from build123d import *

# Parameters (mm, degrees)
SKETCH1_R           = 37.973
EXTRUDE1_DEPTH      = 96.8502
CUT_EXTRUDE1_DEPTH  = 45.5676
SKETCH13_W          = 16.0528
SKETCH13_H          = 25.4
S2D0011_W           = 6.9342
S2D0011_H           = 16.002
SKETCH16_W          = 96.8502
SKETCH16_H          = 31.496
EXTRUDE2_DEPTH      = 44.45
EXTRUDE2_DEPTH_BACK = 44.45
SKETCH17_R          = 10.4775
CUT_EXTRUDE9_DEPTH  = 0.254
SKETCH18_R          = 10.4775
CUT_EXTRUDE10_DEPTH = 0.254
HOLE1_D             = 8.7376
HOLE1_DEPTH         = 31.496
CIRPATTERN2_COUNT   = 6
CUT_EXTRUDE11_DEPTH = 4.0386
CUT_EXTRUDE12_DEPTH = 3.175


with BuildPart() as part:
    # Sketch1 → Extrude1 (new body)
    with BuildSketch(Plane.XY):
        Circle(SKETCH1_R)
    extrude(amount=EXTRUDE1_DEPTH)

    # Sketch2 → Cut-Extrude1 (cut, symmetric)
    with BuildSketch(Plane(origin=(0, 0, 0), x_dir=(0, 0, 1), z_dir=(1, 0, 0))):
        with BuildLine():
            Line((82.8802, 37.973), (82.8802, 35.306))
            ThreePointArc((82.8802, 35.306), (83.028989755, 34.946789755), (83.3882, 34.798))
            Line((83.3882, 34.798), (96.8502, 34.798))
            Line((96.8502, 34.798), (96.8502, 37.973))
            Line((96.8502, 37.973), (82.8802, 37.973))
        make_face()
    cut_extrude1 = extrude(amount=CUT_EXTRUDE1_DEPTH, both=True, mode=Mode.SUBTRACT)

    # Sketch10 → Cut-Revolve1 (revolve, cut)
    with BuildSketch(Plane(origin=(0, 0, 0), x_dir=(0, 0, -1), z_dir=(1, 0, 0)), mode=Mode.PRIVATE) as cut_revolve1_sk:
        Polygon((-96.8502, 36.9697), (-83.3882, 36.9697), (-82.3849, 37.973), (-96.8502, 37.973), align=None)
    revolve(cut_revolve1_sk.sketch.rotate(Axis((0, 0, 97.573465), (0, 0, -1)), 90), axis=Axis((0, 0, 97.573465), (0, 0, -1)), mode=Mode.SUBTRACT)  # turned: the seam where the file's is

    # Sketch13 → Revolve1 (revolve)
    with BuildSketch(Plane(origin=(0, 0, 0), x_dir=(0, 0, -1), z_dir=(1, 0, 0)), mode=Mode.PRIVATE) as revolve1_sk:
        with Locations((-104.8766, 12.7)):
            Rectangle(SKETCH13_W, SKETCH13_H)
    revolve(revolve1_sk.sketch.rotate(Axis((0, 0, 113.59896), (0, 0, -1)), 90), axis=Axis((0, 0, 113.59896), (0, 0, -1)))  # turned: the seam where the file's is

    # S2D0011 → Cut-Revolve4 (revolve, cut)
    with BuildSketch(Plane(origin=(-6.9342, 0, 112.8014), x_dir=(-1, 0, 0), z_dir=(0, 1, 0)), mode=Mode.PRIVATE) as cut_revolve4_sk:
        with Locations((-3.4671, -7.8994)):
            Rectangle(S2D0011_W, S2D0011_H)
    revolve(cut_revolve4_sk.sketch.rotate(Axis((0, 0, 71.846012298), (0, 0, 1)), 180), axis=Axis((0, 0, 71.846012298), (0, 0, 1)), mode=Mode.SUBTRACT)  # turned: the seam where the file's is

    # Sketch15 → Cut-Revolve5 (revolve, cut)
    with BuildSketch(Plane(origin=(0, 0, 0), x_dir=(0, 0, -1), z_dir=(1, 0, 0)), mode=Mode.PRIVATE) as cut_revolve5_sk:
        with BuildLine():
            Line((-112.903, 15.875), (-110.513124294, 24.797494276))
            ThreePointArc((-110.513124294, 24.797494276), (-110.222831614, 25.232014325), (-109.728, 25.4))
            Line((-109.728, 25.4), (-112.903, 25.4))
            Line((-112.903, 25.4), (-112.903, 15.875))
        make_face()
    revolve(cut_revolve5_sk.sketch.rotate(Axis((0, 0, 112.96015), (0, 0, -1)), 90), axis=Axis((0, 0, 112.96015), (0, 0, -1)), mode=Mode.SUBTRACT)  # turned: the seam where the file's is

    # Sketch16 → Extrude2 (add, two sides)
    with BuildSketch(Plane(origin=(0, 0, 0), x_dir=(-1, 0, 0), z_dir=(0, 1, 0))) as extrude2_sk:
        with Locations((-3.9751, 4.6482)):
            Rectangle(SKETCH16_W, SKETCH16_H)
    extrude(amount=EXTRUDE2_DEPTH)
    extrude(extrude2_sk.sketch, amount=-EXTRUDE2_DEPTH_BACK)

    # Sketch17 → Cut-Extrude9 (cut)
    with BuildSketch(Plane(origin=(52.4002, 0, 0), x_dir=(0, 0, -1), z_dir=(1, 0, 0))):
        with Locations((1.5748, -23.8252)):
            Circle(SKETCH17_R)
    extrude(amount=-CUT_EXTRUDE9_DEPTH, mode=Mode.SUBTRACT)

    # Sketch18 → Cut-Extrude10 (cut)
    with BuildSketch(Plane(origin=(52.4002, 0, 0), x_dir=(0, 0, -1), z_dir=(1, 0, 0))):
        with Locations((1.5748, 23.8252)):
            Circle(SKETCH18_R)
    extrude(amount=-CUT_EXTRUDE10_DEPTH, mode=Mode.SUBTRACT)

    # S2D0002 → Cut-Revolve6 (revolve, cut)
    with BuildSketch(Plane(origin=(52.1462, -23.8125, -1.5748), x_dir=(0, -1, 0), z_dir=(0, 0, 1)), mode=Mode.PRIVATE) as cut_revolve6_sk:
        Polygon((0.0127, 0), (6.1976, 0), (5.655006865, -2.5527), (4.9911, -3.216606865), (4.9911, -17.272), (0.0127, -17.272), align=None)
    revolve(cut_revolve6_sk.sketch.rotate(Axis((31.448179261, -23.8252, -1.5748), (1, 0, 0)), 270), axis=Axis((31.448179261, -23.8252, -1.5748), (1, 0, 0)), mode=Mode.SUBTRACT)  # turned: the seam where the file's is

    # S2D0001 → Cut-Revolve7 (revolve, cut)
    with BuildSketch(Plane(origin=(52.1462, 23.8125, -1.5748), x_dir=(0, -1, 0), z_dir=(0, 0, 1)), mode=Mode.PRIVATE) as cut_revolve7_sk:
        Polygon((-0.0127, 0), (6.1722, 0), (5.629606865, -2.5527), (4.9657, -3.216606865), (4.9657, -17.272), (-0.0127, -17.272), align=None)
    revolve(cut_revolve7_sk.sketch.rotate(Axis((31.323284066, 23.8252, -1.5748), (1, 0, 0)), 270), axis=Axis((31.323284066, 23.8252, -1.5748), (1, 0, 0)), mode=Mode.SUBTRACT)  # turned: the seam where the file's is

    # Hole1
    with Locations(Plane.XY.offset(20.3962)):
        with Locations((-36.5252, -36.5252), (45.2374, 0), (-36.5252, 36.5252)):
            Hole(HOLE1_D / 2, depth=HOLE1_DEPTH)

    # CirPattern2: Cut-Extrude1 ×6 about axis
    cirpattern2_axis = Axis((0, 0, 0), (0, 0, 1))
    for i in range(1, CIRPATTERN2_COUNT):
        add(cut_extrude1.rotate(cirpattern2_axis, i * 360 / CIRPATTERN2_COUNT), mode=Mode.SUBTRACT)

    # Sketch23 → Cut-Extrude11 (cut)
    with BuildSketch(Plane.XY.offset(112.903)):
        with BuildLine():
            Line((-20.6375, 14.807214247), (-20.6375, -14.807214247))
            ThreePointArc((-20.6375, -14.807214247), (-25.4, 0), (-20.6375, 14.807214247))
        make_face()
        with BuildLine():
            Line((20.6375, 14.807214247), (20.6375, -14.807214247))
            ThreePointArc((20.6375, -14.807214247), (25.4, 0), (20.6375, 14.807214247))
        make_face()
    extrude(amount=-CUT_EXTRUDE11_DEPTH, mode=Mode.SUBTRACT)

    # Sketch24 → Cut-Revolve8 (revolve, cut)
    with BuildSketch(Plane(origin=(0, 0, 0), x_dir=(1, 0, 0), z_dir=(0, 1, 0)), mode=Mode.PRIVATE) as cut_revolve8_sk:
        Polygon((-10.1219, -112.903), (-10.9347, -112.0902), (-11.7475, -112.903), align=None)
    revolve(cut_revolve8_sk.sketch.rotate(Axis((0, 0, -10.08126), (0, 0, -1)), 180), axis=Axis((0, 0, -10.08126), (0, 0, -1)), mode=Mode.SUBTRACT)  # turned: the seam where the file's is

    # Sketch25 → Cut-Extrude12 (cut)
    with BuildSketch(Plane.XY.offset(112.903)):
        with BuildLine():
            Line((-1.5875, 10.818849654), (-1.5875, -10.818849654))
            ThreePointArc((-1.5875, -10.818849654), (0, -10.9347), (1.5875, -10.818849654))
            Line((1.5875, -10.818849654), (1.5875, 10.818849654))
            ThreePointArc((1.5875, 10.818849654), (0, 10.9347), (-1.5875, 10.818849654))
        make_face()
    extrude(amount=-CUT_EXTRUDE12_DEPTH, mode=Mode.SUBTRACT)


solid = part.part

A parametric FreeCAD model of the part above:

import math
import FreeCAD as App
import Part
import Sketcher

V = App.Vector
Q = App.Units.Quantity

doc = App.newDocument("Part")
params = doc.addObject("Spreadsheet::Sheet", "Params")
for row, (alias, value) in enumerate([
    ("sketch1_diameter", "2.99 in"),
    ("pad1_length", "3.813 in"),
    ("sketch2_radius", "0.02 in"),
    ("sketch2_height", "0.53 in"),
    ("sketch2_width", "0.105 in"),
    ("pocket1_length", "3.588 in"),
    ("sketch3_height", "0.53 in"),
    ("groove_angle", "360 deg"),
    ("sketch4_width", "1 in"),
    ("sketch4_height", "0.632 in"),
    ("revolution_angle", "360 deg"),
    ("sketch5_height", "0.63 in"),
    ("sketch5_width", "0.273 in"),
    ("groove2_angle", "360 deg"),
    ("sketch6_radius", "0.032 in"),
    ("sketch6_width", "0.375 in"),
    ("sketch6_height", "0.125 in"),
    ("groove3_angle", "360 deg"),
    ("sketch7_height", "1.24 in"),
    ("sketch7_width", "3.813 in"),
    ("pad2_length", "1.75 in"),
    ("pad2_length2", "1.75 in"),
    ("sketch8_diameter", "0.825 in"),
    ("pocket2_length", "0.01 in"),
    ("sketch9_diameter", "0.825 in"),
    ("pocket3_length", "0.01 in"),
    ("sketch10_width", "0.68 in"),
    ("sketch10_height", "0.196 in"),
    ("groove4_angle", "360 deg"),
    ("sketch11_width", "0.68 in"),
    ("sketch11_height", "0.196 in"),
    ("groove5_angle", "360 deg"),
    ("sketch12_diameter", "0.344 in"),
    ("hole_diameter", "0.344 in"),
    ("hole_depth", "1.24 in"),
    ("sketch13_radius", "1 in"),
    ("pocket4_length", "0.159 in"),
    ("sketch14_width", "0.064 in"),
    ("groove6_angle", "360 deg"),
    ("pocket5_length", "0.125 in"),
], start=1):
    params.set(f"A{row}", alias)
    params.set(f"B{row}", "=" + value)
    params.setAlias(f"B{row}", alias)

body = doc.addObject("PartDesign::Body", "Body")

# Sketch on XY plane
sketch1 = body.newObject("Sketcher::SketchObject", "Sketch")
sketch1.AttachmentSupport = (doc.getObject("XY_Plane"), [""])
sketch1.MapMode = "FlatFace"
sketch1.addGeometry(Part.Circle(V(0, 0, 0), V(0, 0, 1), 37.973), False)
sketch1.addConstraint(Sketcher.Constraint("Coincident", 0, 3, -1, 1))
sketch1.addConstraint(Sketcher.Constraint("Diameter", 0, Q("2.99 in")))
sketch1.setExpression("Constraints[1]", "Params.sketch1_diameter")
pad1 = body.newObject("PartDesign::Pad", "Pad")
pad1.Profile = sketch1
pad1.setExpression("Length", "Params.pad1_length")

# Sketch on YZ plane
sketch2 = body.newObject("Sketcher::SketchObject", "Sketch001")
sketch2.AttachmentSupport = (doc.getObject("YZ_Plane"), [""])
sketch2.MapMode = "FlatFace"
sketch2.addGeometry(Part.LineSegment(V(-37.973, 82.8802, 0), V(-35.306, 82.8802, 0)), False)
sketch2.addGeometry(Part.ArcOfCircle(Part.Circle(V(-35.306, 83.3882, 0), V(0, 0, 1), 0.508), math.radians(-90), math.radians(0)), False)
sketch2.addGeometry(Part.LineSegment(V(-34.798, 83.3882, 0), V(-34.798, 96.8502, 0)), False)
sketch2.addGeometry(Part.LineSegment(V(-34.798, 96.8502, 0), V(-37.973, 96.8502, 0)), False)
sketch2.addGeometry(Part.LineSegment(V(-37.973, 96.8502, 0), V(-37.973, 82.8802, 0)), False)
sketch2.addConstraint(Sketcher.Constraint("Tangent", 0, 2, 1, 1))
sketch2.addConstraint(Sketcher.Constraint("Tangent", 1, 2, 2, 1))
sketch2.addConstraint(Sketcher.Constraint("Coincident", 2, 2, 3, 1))
sketch2.addConstraint(Sketcher.Constraint("Coincident", 3, 2, 4, 1))
sketch2.addConstraint(Sketcher.Constraint("Coincident", 4, 2, 0, 1))
sketch2.addConstraint(Sketcher.Constraint("Horizontal", 0))
sketch2.addConstraint(Sketcher.Constraint("Vertical", 2))
sketch2.addConstraint(Sketcher.Constraint("Horizontal", 3))
sketch2.addConstraint(Sketcher.Constraint("Vertical", 4))
sketch2.addConstraint(Sketcher.Constraint("Radius", 1, Q("0.02 in")))
sketch2.addConstraint(Sketcher.Constraint("DistanceY", 2, 1, 2, 2, Q("0.53 in")))
sketch2.addConstraint(Sketcher.Constraint("DistanceX", 0, 1, 0, 2, Q("0.105 in")))
sketch2.addConstraint(Sketcher.Constraint("DistanceX", 1, 3, -1, 1, Q("1.39 in")))
sketch2.addConstraint(Sketcher.Constraint("DistanceY", -1, 1, 1, 3, Q("3.283 in")))
sketch2.setExpression("Constraints[9]", "Params.sketch2_radius")
sketch2.setExpression("Constraints[10]", "Params.sketch2_height")
sketch2.setExpression("Constraints[11]", "Params.sketch2_width")
pocket1 = body.newObject("PartDesign::Pocket", "Pocket")
pocket1.Profile = sketch2
pocket1.setExpression("Length", "Params.pocket1_length")
pocket1.Midplane = True

# Sketch on YZ plane
sketch3 = body.newObject("Sketcher::SketchObject", "Sketch002")
sketch3.AttachmentSupport = (doc.getObject("YZ_Plane"), [""])
sketch3.MapMode = "FlatFace"
sketch3.addGeometry(Part.LineSegment(V(36.9697, 96.8502, 0), V(36.9697, 83.3882, 0)), False)
sketch3.addGeometry(Part.LineSegment(V(36.9697, 83.3882, 0), V(37.973, 82.3849, 0)), False)
sketch3.addGeometry(Part.LineSegment(V(37.973, 82.3849, 0), V(37.973, 96.8502, 0)), False)
sketch3.addGeometry(Part.LineSegment(V(37.973, 96.8502, 0), V(36.9697, 96.8502, 0)), False)
sketch3.addConstraint(Sketcher.Constraint("Coincident", 0, 2, 1, 1))
sketch3.addConstraint(Sketcher.Constraint("Coincident", 1, 2, 2, 1))
sketch3.addConstraint(Sketcher.Constraint("Coincident", 2, 2, 3, 1))
sketch3.addConstraint(Sketcher.Constraint("Coincident", 3, 2, 0, 1))
sketch3.addConstraint(Sketcher.Constraint("Vertical", 0))
sketch3.addConstraint(Sketcher.Constraint("Vertical", 2))
sketch3.addConstraint(Sketcher.Constraint("Horizontal", 3))
sketch3.addConstraint(Sketcher.Constraint("Angle", 1, Q("-45 deg")))
sketch3.addConstraint(Sketcher.Constraint("DistanceY", 0, 2, 0, 1, Q("0.53 in")))
sketch3.addConstraint(Sketcher.Constraint("DistanceX", 3, 2, 3, 1, Q("0.0395 in")))
sketch3.addConstraint(Sketcher.Constraint("DistanceY", -1, 1, 0, 2, Q("3.283 in")))
sketch3.addConstraint(Sketcher.Constraint("DistanceX", -1, 1, 1, 2, Q("1.495 in")))
sketch3.setExpression("Constraints[8]", "Params.sketch3_height")
groove = body.newObject("PartDesign::Groove", "Groove")
groove.Profile = sketch3
groove.ReferenceAxis = (sketch3, ["V_Axis"])
groove.setExpression("Angle", "Params.groove_angle")

# Sketch on YZ plane
sketch4 = body.newObject("Sketcher::SketchObject", "Sketch003")
sketch4.AttachmentSupport = (doc.getObject("YZ_Plane"), [""])
sketch4.MapMode = "FlatFace"
sketch4.addGeometry(Part.LineSegment(V(25.4, 112.903, 0), V(0, 112.903, 0)), False)
sketch4.addGeometry(Part.LineSegment(V(0, 112.903, 0), V(0, 96.8502, 0)), False)
sketch4.addGeometry(Part.LineSegment(V(0, 96.8502, 0), V(25.4, 96.8502, 0)), False)
sketch4.addGeometry(Part.LineSegment(V(25.4, 96.8502, 0), V(25.4, 112.903, 0)), False)
sketch4.addConstraint(Sketcher.Constraint("Coincident", 0, 2, 1, 1))
sketch4.addConstraint(Sketcher.Constraint("Coincident", 1, 2, 2, 1))
sketch4.addConstraint(Sketcher.Constraint("Coincident", 2, 2, 3, 1))
sketch4.addConstraint(Sketcher.Constraint("Coincident", 3, 2, 0, 1))
sketch4.addConstraint(Sketcher.Constraint("Horizontal", 0))
sketch4.addConstraint(Sketcher.Constraint("Vertical", 1))
sketch4.addConstraint(Sketcher.Constraint("Horizontal", 2))
sketch4.addConstraint(Sketcher.Constraint("Vertical", 3))
sketch4.addConstraint(Sketcher.Constraint("PointOnObject", 0, 2, -2))
sketch4.addConstraint(Sketcher.Constraint("DistanceX", 0, 2, 0, 1, Q("1 in")))
sketch4.addConstraint(Sketcher.Constraint("DistanceY", 1, 2, 1, 1, Q("0.632 in")))
sketch4.addConstraint(Sketcher.Constraint("DistanceY", -1, 1, 0, 2, Q("4.445 in")))
sketch4.setExpression("Constraints[9]", "Params.sketch4_width")
sketch4.setExpression("Constraints[10]", "Params.sketch4_height")
revolution = body.newObject("PartDesign::Revolution", "Revolution")
revolution.Profile = sketch4
revolution.ReferenceAxis = (sketch4, ["V_Axis"])
revolution.setExpression("Angle", "Params.revolution_angle")

# Sketch on XZ plane
sketch5 = body.newObject("Sketcher::SketchObject", "Sketch004")
sketch5.AttachmentSupport = (doc.getObject("XZ_Plane"), [""])
sketch5.MapMode = "FlatFace"
sketch5.addGeometry(Part.LineSegment(V(0, 112.903, 0), V(0, 96.901, 0)), False)
sketch5.addGeometry(Part.LineSegment(V(0, 96.901, 0), V(-6.9342, 96.901, 0)), False)
sketch5.addGeometry(Part.LineSegment(V(-6.9342, 96.901, 0), V(-6.9342, 112.903, 0)), False)
sketch5.addGeometry(Part.LineSegment(V(-6.9342, 112.903, 0), V(0, 112.903, 0)), False)
sketch5.addConstraint(Sketcher.Constraint("Coincident", 0, 2, 1, 1))
sketch5.addConstraint(Sketcher.Constraint("Coincident", 1, 2, 2, 1))
sketch5.addConstraint(Sketcher.Constraint("Coincident", 2, 2, 3, 1))
sketch5.addConstraint(Sketcher.Constraint("Coincident", 3, 2, 0, 1))
sketch5.addConstraint(Sketcher.Constraint("Vertical", 0))
sketch5.addConstraint(Sketcher.Constraint("Horizontal", 1))
sketch5.addConstraint(Sketcher.Constraint("Vertical", 2))
sketch5.addConstraint(Sketcher.Constraint("Horizontal", 3))
sketch5.addConstraint(Sketcher.Constraint("PointOnObject", 0, 2, -2))
sketch5.addConstraint(Sketcher.Constraint("DistanceY", 0, 2, 0, 1, Q("0.63 in")))
sketch5.addConstraint(Sketcher.Constraint("DistanceX", 1, 2, 1, 1, Q("0.273 in")))
sketch5.addConstraint(Sketcher.Constraint("DistanceY", -1, 1, 0, 2, Q("3.815 in")))
sketch5.setExpression("Constraints[9]", "Params.sketch5_height")
sketch5.setExpression("Constraints[10]", "Params.sketch5_width")
groove2 = body.newObject("PartDesign::Groove", "Groove001")
groove2.Profile = sketch5
groove2.ReferenceAxis = (sketch5, ["V_Axis"])
groove2.setExpression("Angle", "Params.groove2_angle")

# Sketch on YZ plane
sketch6 = body.newObject("Sketcher::SketchObject", "Sketch005")
sketch6.AttachmentSupport = (doc.getObject("YZ_Plane"), [""])
sketch6.MapMode = "FlatFace"
sketch6.addGeometry(Part.LineSegment(V(15.875, 112.903, 0), V(24.797494, 110.513124, 0)), False)
sketch6.addGeometry(Part.ArcOfCircle(Part.Circle(V(24.5872, 109.728, 0), V(0, 0, 1), 0.8128), math.radians(0), math.radians(75.005389)), False)
sketch6.addGeometry(Part.LineSegment(V(25.4, 109.728, 0), V(25.4, 112.903, 0)), False)
sketch6.addGeometry(Part.LineSegment(V(25.4, 112.903, 0), V(15.875, 112.903, 0)), False)
sketch6.addConstraint(Sketcher.Constraint("Tangent", 0, 2, 1, 2))
sketch6.addConstraint(Sketcher.Constraint("Tangent", 1, 1, 2, 1))
sketch6.addConstraint(Sketcher.Constraint("Coincident", 2, 2, 3, 1))
sketch6.addConstraint(Sketcher.Constraint("Coincident", 3, 2, 0, 1))
sketch6.addConstraint(Sketcher.Constraint("Vertical", 2))
sketch6.addConstraint(Sketcher.Constraint("Horizontal", 3))
sketch6.addConstraint(Sketcher.Constraint("DistanceX", -1, 1, 1, 1, Q("1 in")))
sketch6.addConstraint(Sketcher.Constraint("Radius", 1, Q("0.032 in")))
sketch6.addConstraint(Sketcher.Constraint("DistanceX", 3, 2, 3, 1, Q("0.375 in")))
sketch6.addConstraint(Sketcher.Constraint("DistanceY", 2, 1, 2, 2, Q("0.125 in")))
sketch6.addConstraint(Sketcher.Constraint("DistanceY", -1, 1, 1, 3, Q("4.32 in")))
sketch6.setExpression("Constraints[7]", "Params.sketch6_radius")
sketch6.setExpression("Constraints[8]", "Params.sketch6_width")
sketch6.setExpression("Constraints[9]", "Params.sketch6_height")
groove3 = body.newObject("PartDesign::Groove", "Groove002")
groove3.Profile = sketch6
groove3.ReferenceAxis = (sketch6, ["V_Axis"])
groove3.setExpression("Angle", "Params.groove3_angle")

# Sketch on XZ plane
sketch7 = body.newObject("Sketcher::SketchObject", "Sketch006")
sketch7.AttachmentSupport = (doc.getObject("XZ_Plane"), [""])
sketch7.MapMode = "FlatFace"
sketch7.addGeometry(Part.LineSegment(V(52.4002, 20.3962, 0), V(52.4002, -11.0998, 0)), False)
sketch7.addGeometry(Part.LineSegment(V(52.4002, -11.0998, 0), V(-44.45, -11.0998, 0)), False)
sketch7.addGeometry(Part.LineSegment(V(-44.45, -11.0998, 0), V(-44.45, 20.3962, 0)), False)
sketch7.addGeometry(Part.LineSegment(V(-44.45, 20.3962, 0), V(52.4002, 20.3962, 0)), False)
sketch7.addConstraint(Sketcher.Constraint("Coincident", 0, 2, 1, 1))
sketch7.addConstraint(Sketcher.Constraint("Coincident", 1, 2, 2, 1))
sketch7.addConstraint(Sketcher.Constraint("Coincident", 2, 2, 3, 1))
sketch7.addConstraint(Sketcher.Constraint("Coincident", 3, 2, 0, 1))
sketch7.addConstraint(Sketcher.Constraint("Vertical", 0))
sketch7.addConstraint(Sketcher.Constraint("Horizontal", 1))
sketch7.addConstraint(Sketcher.Constraint("Vertical", 2))
sketch7.addConstraint(Sketcher.Constraint("Horizontal", 3))
sketch7.addConstraint(Sketcher.Constraint("DistanceY", 0, 2, 0, 1, Q("1.24 in")))
sketch7.addConstraint(Sketcher.Constraint("DistanceX", 1, 2, 1, 1, Q("3.813 in")))
sketch7.addConstraint(Sketcher.Constraint("DistanceX", 1, 2, -1, 1, Q("1.75 in")))
sketch7.addConstraint(Sketcher.Constraint("DistanceY", 0, 2, -1, 1, Q("0.437 in")))
sketch7.setExpression("Constraints[8]", "Params.sketch7_height")
sketch7.setExpression("Constraints[9]", "Params.sketch7_width")
pad2 = body.newObject("PartDesign::Pad", "Pad001")
pad2.Profile = sketch7
pad2.Type = "TwoLengths"
pad2.setExpression("Length", "Params.pad2_length")
pad2.setExpression("Length2", "Params.pad2_length2")
pad2.Reversed = True

# Sketch on YZ plane
sketch8 = body.newObject("Sketcher::SketchObject", "Sketch007")
sketch8.AttachmentSupport = (doc.getObject("YZ_Plane"), [""])
sketch8.MapMode = "FlatFace"
sketch8.AttachmentOffset = App.Placement(V(0, 0, 2.063 * 25.4), App.Rotation())
sketch8.addGeometry(Part.Circle(V(-23.8252, -1.5748, 0), V(0, 0, 1), 10.4775), False)
sketch8.addConstraint(Sketcher.Constraint("Diameter", 0, Q("0.825 in")))
sketch8.addConstraint(Sketcher.Constraint("DistanceX", 0, 3, -1, 1, Q("0.938 in")))
sketch8.addConstraint(Sketcher.Constraint("DistanceY", 0, 3, -1, 1, Q("0.062 in")))
sketch8.setExpression("Constraints[0]", "Params.sketch8_diameter")
pocket2 = body.newObject("PartDesign::Pocket", "Pocket001")
pocket2.Profile = sketch8
pocket2.setExpression("Length", "Params.pocket2_length")

# Sketch on YZ plane
sketch9 = body.newObject("Sketcher::SketchObject", "Sketch008")
sketch9.AttachmentSupport = (doc.getObject("YZ_Plane"), [""])
sketch9.MapMode = "FlatFace"
sketch9.AttachmentOffset = App.Placement(V(0, 0, 2.063 * 25.4), App.Rotation())
sketch9.addGeometry(Part.Circle(V(23.8252, -1.5748, 0), V(0, 0, 1), 10.4775), False)
sketch9.addConstraint(Sketcher.Constraint("Diameter", 0, Q("0.825 in")))
sketch9.addConstraint(Sketcher.Constraint("DistanceX", -1, 1, 0, 3, Q("0.938 in")))
sketch9.addConstraint(Sketcher.Constraint("DistanceY", 0, 3, -1, 1, Q("0.062 in")))
sketch9.setExpression("Constraints[0]", "Params.sketch9_diameter")
pocket3 = body.newObject("PartDesign::Pocket", "Pocket002")
pocket3.Profile = sketch9
pocket3.setExpression("Length", "Params.pocket3_length")

# Sketch on XY plane
sketch10 = body.newObject("Sketcher::SketchObject", "Sketch009")
sketch10.AttachmentSupport = (doc.getObject("XY_Plane"), [""])
sketch10.MapMode = "FlatFace"
sketch10.AttachmentOffset = App.Placement(V(0, 0, -0.062 * 25.4), App.Rotation())
sketch10.addGeometry(Part.LineSegment(V(52.1462, -30.0101, 0), V(52.1462, -23.8252, 0)), False)
sketch10.addGeometry(Part.LineSegment(V(52.1462, -23.8252, 0), V(34.8742, -23.8252, 0)), False)
sketch10.addGeometry(Part.LineSegment(V(34.8742, -23.8252, 0), V(34.8742, -28.8036, 0)), False)
sketch10.addGeometry(Part.LineSegment(V(34.8742, -28.8036, 0), V(48.929593, -28.8036, 0)), False)
sketch10.addGeometry(Part.LineSegment(V(48.929593, -28.8036, 0), V(49.5935, -29.467507, 0)), False)
sketch10.addGeometry(Part.LineSegment(V(49.5935, -29.467507, 0), V(52.1462, -30.0101, 0)), False)
sketch10.addGeometry(Part.LineSegment(V(34.8742, -23.8252, 0), V(52.1462, -23.8252, 0)), True)  # axis
sketch10.addConstraint(Sketcher.Constraint("Coincident", 0, 2, 1, 1))
sketch10.addConstraint(Sketcher.Constraint("Coincident", 1, 2, 2, 1))
sketch10.addConstraint(Sketcher.Constraint("Coincident", 2, 2, 3, 1))
sketch10.addConstraint(Sketcher.Constraint("Coincident", 3, 2, 4, 1))
sketch10.addConstraint(Sketcher.Constraint("Coincident", 4, 2, 5, 1))
sketch10.addConstraint(Sketcher.Constraint("Coincident", 5, 2, 0, 1))
sketch10.addConstraint(Sketcher.Constraint("Vertical", 0))
sketch10.addConstraint(Sketcher.Constraint("Horizontal", 1))
sketch10.addConstraint(Sketcher.Constraint("Vertical", 2))
sketch10.addConstraint(Sketcher.Constraint("Horizontal", 3))
sketch10.addConstraint(Sketcher.Constraint("Horizontal", 6))
sketch10.addConstraint(Sketcher.Constraint("Coincident", 6, 1, 1, 2))
sketch10.addConstraint(Sketcher.Constraint("Vertical", 5, 2, 6, 2))
sketch10.addConstraint(Sketcher.Constraint("Angle", 4, Q("-45 deg")))
sketch10.addConstraint(Sketcher.Constraint("Angle", 5, Q("-12 deg")))
sketch10.addConstraint(Sketcher.Constraint("DistanceX", 1, 2, 1, 1, Q("0.68 in")))
sketch10.addConstraint(Sketcher.Constraint("DistanceY", 2, 2, 2, 1, Q("0.196 in")))
sketch10.addConstraint(Sketcher.Constraint("DistanceY", 0, 1, 0, 2, Q("0.2435 in")))
sketch10.addConstraint(Sketcher.Constraint("DistanceX", -1, 1, 0, 2, Q("2.053 in")))
sketch10.addConstraint(Sketcher.Constraint("DistanceY", 0, 2, -1, 1, Q("0.938 in")))
sketch10.addConstraint(Sketcher.Constraint("DistanceX", -1, 1, 4, 2, Q("1.9525 in")))
sketch10.setExpression("Constraints[15]", "Params.sketch10_width")
sketch10.setExpression("Constraints[16]", "Params.sketch10_height")
groove4 = body.newObject("PartDesign::Groove", "Groove003")
groove4.Profile = sketch10
groove4.ReferenceAxis = (sketch10, ["Axis0"])
groove4.setExpression("Angle", "Params.groove4_angle")

# Sketch on XY plane
sketch11 = body.newObject("Sketcher::SketchObject", "Sketch010")
sketch11.AttachmentSupport = (doc.getObject("XY_Plane"), [""])
sketch11.MapMode = "FlatFace"
sketch11.AttachmentOffset = App.Placement(V(0, 0, -0.062 * 25.4), App.Rotation())
sketch11.addGeometry(Part.LineSegment(V(52.1462, 17.6403, 0), V(52.1462, 23.8252, 0)), False)
sketch11.addGeometry(Part.LineSegment(V(52.1462, 23.8252, 0), V(34.8742, 23.8252, 0)), False)
sketch11.addGeometry(Part.LineSegment(V(34.8742, 23.8252, 0), V(34.8742, 18.8468, 0)), False)
sketch11.addGeometry(Part.LineSegment(V(34.8742, 18.8468, 0), V(48.929593, 18.8468, 0)), False)
sketch11.addGeometry(Part.LineSegment(V(48.929593, 18.8468, 0), V(49.5935, 18.182893, 0)), False)
sketch11.addGeometry(Part.LineSegment(V(49.5935, 18.182893, 0), V(52.1462, 17.6403, 0)), False)
sketch11.addGeometry(Part.LineSegment(V(34.8742, 23.8252, 0), V(52.1462, 23.8252, 0)), True)  # axis
sketch11.addConstraint(Sketcher.Constraint("Coincident", 0, 2, 1, 1))
sketch11.addConstraint(Sketcher.Constraint("Coincident", 1, 2, 2, 1))
sketch11.addConstraint(Sketcher.Constraint("Coincident", 2, 2, 3, 1))
sketch11.addConstraint(Sketcher.Constraint("Coincident", 3, 2, 4, 1))
sketch11.addConstraint(Sketcher.Constraint("Coincident", 4, 2, 5, 1))
sketch11.addConstraint(Sketcher.Constraint("Coincident", 5, 2, 0, 1))
sketch11.addConstraint(Sketcher.Constraint("Vertical", 0))
sketch11.addConstraint(Sketcher.Constraint("Horizontal", 1))
sketch11.addConstraint(Sketcher.Constraint("Vertical", 2))
sketch11.addConstraint(Sketcher.Constraint("Horizontal", 3))
sketch11.addConstraint(Sketcher.Constraint("Horizontal", 6))
sketch11.addConstraint(Sketcher.Constraint("Coincident", 6, 1, 1, 2))
sketch11.addConstraint(Sketcher.Constraint("Vertical", 5, 2, 6, 2))
sketch11.addConstraint(Sketcher.Constraint("Angle", 4, Q("-45 deg")))
sketch11.addConstraint(Sketcher.Constraint("Angle", 5, Q("-12 deg")))
sketch11.addConstraint(Sketcher.Constraint("DistanceX", 1, 2, 1, 1, Q("0.68 in")))
sketch11.addConstraint(Sketcher.Constraint("DistanceY", 2, 2, 2, 1, Q("0.196 in")))
sketch11.addConstraint(Sketcher.Constraint("DistanceY", 0, 1, 0, 2, Q("0.2435 in")))
sketch11.addConstraint(Sketcher.Constraint("DistanceX", -1, 1, 0, 2, Q("2.053 in")))
sketch11.addConstraint(Sketcher.Constraint("DistanceY", -1, 1, 0, 2, Q("0.938 in")))
sketch11.addConstraint(Sketcher.Constraint("DistanceX", -1, 1, 4, 2, Q("1.9525 in")))
sketch11.setExpression("Constraints[15]", "Params.sketch11_width")
sketch11.setExpression("Constraints[16]", "Params.sketch11_height")
groove5 = body.newObject("PartDesign::Groove", "Groove004")
groove5.Profile = sketch11
groove5.ReferenceAxis = (sketch11, ["Axis0"])
groove5.setExpression("Angle", "Params.groove5_angle")

# Sketch on XY plane
sketch12 = body.newObject("Sketcher::SketchObject", "Sketch011")
sketch12.AttachmentSupport = (doc.getObject("XY_Plane"), [""])
sketch12.MapMode = "FlatFace"
sketch12.AttachmentOffset = App.Placement(V(0, 0, 0.803 * 25.4), App.Rotation())
sketch12.addGeometry(Part.Circle(V(-36.5252, -36.5252, 0), V(0, 0, 1), 4.3688), False)
sketch12.addGeometry(Part.Circle(V(45.2374, 0, 0), V(0, 0, 1), 4.3688), False)
sketch12.addGeometry(Part.Circle(V(-36.5252, 36.5252, 0), V(0, 0, 1), 4.3688), False)
sketch12.addConstraint(Sketcher.Constraint("Equal", 0, 1))
sketch12.addConstraint(Sketcher.Constraint("Equal", 1, 2))
sketch12.addConstraint(Sketcher.Constraint("Symmetric", 0, 3, 2, 3, -1))
sketch12.addConstraint(Sketcher.Constraint("PointOnObject", 1, 3, -1))
sketch12.addConstraint(Sketcher.Constraint("Diameter", 0, Q("0.344 in")))
sketch12.addConstraint(Sketcher.Constraint("DistanceX", 0, 3, -1, 1, Q("1.438 in")))
sketch12.addConstraint(Sketcher.Constraint("DistanceY", 0, 3, -1, 1, Q("1.438 in")))
sketch12.addConstraint(Sketcher.Constraint("DistanceX", -1, 1, 1, 3, Q("1.781 in")))
sketch12.setExpression("Constraints[4]", "Params.sketch12_diameter")
doc.recompute()
hole = body.newObject("PartDesign::Hole", "Hole")
hole.Profile = sketch12
hole.ThreadType = "None"
hole.setExpression("Diameter", "Params.hole_diameter")
hole.DepthType = "Dimension"
hole.setExpression("Depth", "Params.hole_depth")
hole.DrillPoint = "Flat"
doc.recompute()

polarpattern = body.newObject("PartDesign::PolarPattern", "PolarPattern")
polarpattern.Originals = [pocket1]
polarpattern.Axis = (doc.getObject("Z_Axis"), [""])
polarpattern.Angle = 360
polarpattern.Occurrences = 6
body.Tip = polarpattern

# Sketch on XY plane
sketch13 = body.newObject("Sketcher::SketchObject", "Sketch012")
sketch13.AttachmentSupport = (doc.getObject("XY_Plane"), [""])
sketch13.MapMode = "FlatFace"
sketch13.AttachmentOffset = App.Placement(V(0, 0, 4.445 * 25.4), App.Rotation())
sketch13.addGeometry(Part.LineSegment(V(-20.6375, -14.807214, 0), V(-20.6375, 14.807214, 0)), False)
sketch13.addGeometry(Part.ArcOfCircle(Part.Circle(V(0, 0, 0), V(0, 0, 1), 25.4), math.radians(144.340912), math.radians(215.659088)), False)
sketch13.addGeometry(Part.LineSegment(V(20.6375, 14.807214, 0), V(20.6375, -14.807214, 0)), False)
sketch13.addGeometry(Part.ArcOfCircle(Part.Circle(V(0, 0, 0), V(0, 0, 1), 25.4), math.radians(-35.659088), math.radians(35.659088)), False)
sketch13.addConstraint(Sketcher.Constraint("Coincident", 0, 1, 1, 2))
sketch13.addConstraint(Sketcher.Constraint("Coincident", 1, 1, 0, 2))
sketch13.addConstraint(Sketcher.Constraint("Coincident", 2, 1, 3, 2))
sketch13.addConstraint(Sketcher.Constraint("Coincident", 3, 1, 2, 2))
sketch13.addConstraint(Sketcher.Constraint("Vertical", 0))
sketch13.addConstraint(Sketcher.Constraint("Vertical", 2))
sketch13.addConstraint(Sketcher.Constraint("Coincident", 1, 3, -1, 1))
sketch13.addConstraint(Sketcher.Constraint("Coincident", 3, 3, -1, 1))
sketch13.addConstraint(Sketcher.Constraint("Equal", 1, 3))
sketch13.addConstraint(Sketcher.Constraint("Horizontal", 1, 1, 2, 1))
sketch13.addConstraint(Sketcher.Constraint("Radius", 1, Q("1 in")))
sketch13.addConstraint(Sketcher.Constraint("DistanceX", 0, 1, -1, 1, Q("0.8125 in")))
sketch13.setExpression("Constraints[10]", "Params.sketch13_radius")
pocket4 = body.newObject("PartDesign::Pocket", "Pocket003")
pocket4.Profile = sketch13
pocket4.setExpression("Length", "Params.pocket4_length")

# Sketch on XZ plane
sketch14 = body.newObject("Sketcher::SketchObject", "Sketch013")
sketch14.AttachmentSupport = (doc.getObject("XZ_Plane"), [""])
sketch14.MapMode = "FlatFace"
sketch14.addGeometry(Part.LineSegment(V(-10.1219, 112.903, 0), V(-10.9347, 112.0902, 0)), False)
sketch14.addGeometry(Part.LineSegment(V(-10.9347, 112.0902, 0), V(-11.7475, 112.903, 0)), False)
sketch14.addGeometry(Part.LineSegment(V(-11.7475, 112.903, 0), V(-10.1219, 112.903, 0)), False)
sketch14.addConstraint(Sketcher.Constraint("Coincident", 0, 2, 1, 1))
sketch14.addConstraint(Sketcher.Constraint("Coincident", 1, 2, 2, 1))
sketch14.addConstraint(Sketcher.Constraint("Coincident", 2, 2, 0, 1))
sketch14.addConstraint(Sketcher.Constraint("Horizontal", 2))
sketch14.addConstraint(Sketcher.Constraint("Perpendicular", 0, 1))
sketch14.addConstraint(Sketcher.Constraint("Equal", 0, 1))
sketch14.addConstraint(Sketcher.Constraint("DistanceX", 2, 1, 2, 2, Q("0.064 in")))
sketch14.addConstraint(Sketcher.Constraint("DistanceY", -1, 1, 0, 2, Q("4.413 in")))
sketch14.addConstraint(Sketcher.Constraint("DistanceX", 0, 2, -1, 1, Q("0.4305 in")))
sketch14.setExpression("Constraints[6]", "Params.sketch14_width")
groove6 = body.newObject("PartDesign::Groove", "Groove005")
groove6.Profile = sketch14
groove6.ReferenceAxis = (sketch14, ["V_Axis"])
groove6.setExpression("Angle", "Params.groove6_angle")

# Sketch on XY plane
sketch15 = body.newObject("Sketcher::SketchObject", "Sketch014")
sketch15.AttachmentSupport = (doc.getObject("XY_Plane"), [""])
sketch15.MapMode = "FlatFace"
sketch15.AttachmentOffset = App.Placement(V(0, 0, 4.445 * 25.4), App.Rotation())
sketch15.addGeometry(Part.LineSegment(V(-1.5875, 10.81885, 0), V(-1.5875, -10.81885, 0)), False)
sketch15.addGeometry(Part.ArcOfCircle(Part.Circle(V(0, 0, 0), V(0, 0, 1), 10.9347), math.radians(-98.347704), math.radians(-81.652296)), False)
sketch15.addGeometry(Part.LineSegment(V(1.5875, -10.81885, 0), V(1.5875, 10.81885, 0)), False)
sketch15.addGeometry(Part.ArcOfCircle(Part.Circle(V(0, 0, 0), V(0, 0, 1), 10.9347), math.radians(81.652296), math.radians(98.347704)), False)
sketch15.addConstraint(Sketcher.Constraint("Coincident", 0, 2, 1, 1))
sketch15.addConstraint(Sketcher.Constraint("Coincident", 1, 2, 2, 1))
sketch15.addConstraint(Sketcher.Constraint("Coincident", 2, 2, 3, 1))
sketch15.addConstraint(Sketcher.Constraint("Coincident", 3, 2, 0, 1))
sketch15.addConstraint(Sketcher.Constraint("Vertical", 0))
sketch15.addConstraint(Sketcher.Constraint("Vertical", 2))
sketch15.addConstraint(Sketcher.Constraint("Coincident", 1, 3, -1, 1))
sketch15.addConstraint(Sketcher.Constraint("Coincident", 3, 3, -1, 1))
sketch15.addConstraint(Sketcher.Constraint("Equal", 1, 3))
sketch15.addConstraint(Sketcher.Constraint("Horizontal", 0, 2, 1, 2))
sketch15.addConstraint(Sketcher.Constraint("Radius", 1, Q("0.4305 in")))
sketch15.addConstraint(Sketcher.Constraint("DistanceX", 0, 2, -1, 1, Q("0.0625 in")))
pocket5 = body.newObject("PartDesign::Pocket", "Pocket004")
pocket5.Profile = sketch15
pocket5.setExpression("Length", "Params.pocket5_length")

doc.recompute()
